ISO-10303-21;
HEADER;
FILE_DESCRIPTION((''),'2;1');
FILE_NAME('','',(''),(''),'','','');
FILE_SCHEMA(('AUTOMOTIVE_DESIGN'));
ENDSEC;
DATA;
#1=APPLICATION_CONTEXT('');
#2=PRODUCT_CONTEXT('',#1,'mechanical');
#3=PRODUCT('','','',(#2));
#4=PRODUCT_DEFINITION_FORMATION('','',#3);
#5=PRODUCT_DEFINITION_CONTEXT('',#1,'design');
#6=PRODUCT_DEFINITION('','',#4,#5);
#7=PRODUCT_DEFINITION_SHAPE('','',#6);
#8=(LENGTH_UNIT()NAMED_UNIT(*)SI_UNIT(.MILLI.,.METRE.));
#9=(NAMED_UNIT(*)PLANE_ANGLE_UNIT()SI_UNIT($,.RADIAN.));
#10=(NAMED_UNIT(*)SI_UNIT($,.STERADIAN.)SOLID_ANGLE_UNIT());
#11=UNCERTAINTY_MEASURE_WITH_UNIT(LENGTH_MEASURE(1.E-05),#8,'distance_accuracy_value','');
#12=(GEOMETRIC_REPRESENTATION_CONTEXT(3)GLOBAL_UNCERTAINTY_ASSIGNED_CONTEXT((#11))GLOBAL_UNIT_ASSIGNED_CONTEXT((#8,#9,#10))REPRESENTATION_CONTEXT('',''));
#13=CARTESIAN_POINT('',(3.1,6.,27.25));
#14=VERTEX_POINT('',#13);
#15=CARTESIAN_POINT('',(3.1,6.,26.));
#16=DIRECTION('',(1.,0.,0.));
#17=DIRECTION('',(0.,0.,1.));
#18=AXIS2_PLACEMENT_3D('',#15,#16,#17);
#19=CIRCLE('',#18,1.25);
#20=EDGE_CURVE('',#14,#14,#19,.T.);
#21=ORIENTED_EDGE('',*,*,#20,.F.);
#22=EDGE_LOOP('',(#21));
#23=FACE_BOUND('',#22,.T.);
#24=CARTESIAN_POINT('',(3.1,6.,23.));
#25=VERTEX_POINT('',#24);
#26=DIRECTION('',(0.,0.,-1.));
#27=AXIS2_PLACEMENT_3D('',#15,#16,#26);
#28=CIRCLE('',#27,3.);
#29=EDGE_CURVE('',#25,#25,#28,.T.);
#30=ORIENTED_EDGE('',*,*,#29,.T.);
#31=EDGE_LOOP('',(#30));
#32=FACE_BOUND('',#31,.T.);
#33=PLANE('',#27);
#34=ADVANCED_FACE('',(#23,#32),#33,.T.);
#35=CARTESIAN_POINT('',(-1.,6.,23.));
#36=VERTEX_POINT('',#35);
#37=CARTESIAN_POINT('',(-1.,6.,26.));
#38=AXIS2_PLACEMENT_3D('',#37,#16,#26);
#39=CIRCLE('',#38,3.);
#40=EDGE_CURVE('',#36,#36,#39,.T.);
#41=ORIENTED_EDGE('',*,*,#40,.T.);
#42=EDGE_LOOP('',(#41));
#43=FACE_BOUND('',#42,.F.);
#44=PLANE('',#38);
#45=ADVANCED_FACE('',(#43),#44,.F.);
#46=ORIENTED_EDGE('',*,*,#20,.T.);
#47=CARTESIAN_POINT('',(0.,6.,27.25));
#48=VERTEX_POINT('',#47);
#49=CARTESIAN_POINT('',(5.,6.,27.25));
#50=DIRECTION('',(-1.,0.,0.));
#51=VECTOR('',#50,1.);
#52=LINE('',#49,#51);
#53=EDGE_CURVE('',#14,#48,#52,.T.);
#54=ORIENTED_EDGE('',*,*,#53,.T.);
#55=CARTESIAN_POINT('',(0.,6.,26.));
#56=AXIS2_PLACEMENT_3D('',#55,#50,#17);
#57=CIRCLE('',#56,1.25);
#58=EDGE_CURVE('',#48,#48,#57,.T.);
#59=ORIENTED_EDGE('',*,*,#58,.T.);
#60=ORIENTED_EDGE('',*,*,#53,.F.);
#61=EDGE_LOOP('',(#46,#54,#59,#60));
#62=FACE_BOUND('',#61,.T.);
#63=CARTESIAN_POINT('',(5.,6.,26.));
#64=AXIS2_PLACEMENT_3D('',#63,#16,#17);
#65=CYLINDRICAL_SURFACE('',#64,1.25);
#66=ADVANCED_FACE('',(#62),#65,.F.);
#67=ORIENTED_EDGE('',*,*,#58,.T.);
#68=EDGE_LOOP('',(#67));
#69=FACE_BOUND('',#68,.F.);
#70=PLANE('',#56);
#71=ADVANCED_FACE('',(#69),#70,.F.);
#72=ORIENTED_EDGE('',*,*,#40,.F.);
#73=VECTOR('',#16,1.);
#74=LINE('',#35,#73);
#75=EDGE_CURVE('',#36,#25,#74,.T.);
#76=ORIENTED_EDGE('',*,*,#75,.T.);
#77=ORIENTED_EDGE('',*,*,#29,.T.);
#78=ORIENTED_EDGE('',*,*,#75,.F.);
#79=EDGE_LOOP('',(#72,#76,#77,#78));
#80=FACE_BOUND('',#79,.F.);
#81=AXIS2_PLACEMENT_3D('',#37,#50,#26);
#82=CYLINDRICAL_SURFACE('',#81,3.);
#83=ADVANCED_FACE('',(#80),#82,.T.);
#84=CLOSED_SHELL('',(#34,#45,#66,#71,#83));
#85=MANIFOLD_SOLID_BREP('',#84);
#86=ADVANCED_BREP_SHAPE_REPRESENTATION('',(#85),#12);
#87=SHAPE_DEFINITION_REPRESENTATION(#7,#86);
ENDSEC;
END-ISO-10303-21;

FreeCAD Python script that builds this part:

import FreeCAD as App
import Part
import Sketcher

doc = App.newDocument("Part")
body = doc.addObject("PartDesign::Body", "Body")

sketch1 = doc.addObject("Sketcher::SketchObject", "Sketch")
body.addObject(sketch1)
sketch1.AttachmentSupport = (doc.YZ_Plane, [""])
sketch1.MapMode = "FlatFace"
sketch1.AttachmentOffset = App.Placement(App.Vector(0, 0, 5), App.Rotation())
sketch1.addGeometry(Part.Circle(App.Vector(6, 26, 0), App.Vector(0, 0, 1), 1.2), False)
sketch1.addConstraint([
    Sketcher.Constraint("Diameter", 0, 2.5),
    Sketcher.Constraint("DistanceX", -1, 1, 0, 3, 6.0),
    Sketcher.Constraint("DistanceY", -1, 1, 0, 3, 26.0),
])
pad1 = doc.addObject("PartDesign::Pad", "Pad")
body.addObject(pad1)
pad1.Profile = sketch1
pad1.Length = 5
pad1.Reversed = True
body2 = doc.addObject("PartDesign::Body", "Body001")

sketch2 = doc.addObject("Sketcher::SketchObject", "Sketch001")
body2.addObject(sketch2)
sketch2.AttachmentSupport = (doc.getObject("YZ_Plane001"), [""])
sketch2.MapMode = "FlatFace"
sketch2.AttachmentOffset = App.Placement(App.Vector(0, 0, -1), App.Rotation())
sketch2.addGeometry(Part.Circle(App.Vector(6, 26, 0), App.Vector(0, 0, 1), 3), False)
sketch2.addConstraint([
    Sketcher.Constraint("Diameter", 0, 6.0),
    Sketcher.Constraint("DistanceX", -1, 1, 0, 3, 6.0),
    Sketcher.Constraint("DistanceY", -1, 1, 0, 3, 26.0),
])
pad2 = doc.addObject("PartDesign::Pad", "Pad001")
body2.addObject(pad2)
pad2.Profile = sketch2
pad2.Length = 4.1
doc.recompute()

boolean = doc.addObject("PartDesign::Boolean", "Boolean")
body2.addObject(boolean)
boolean.Type = "Cut"
boolean.addObjects([body])

doc.recompute()
